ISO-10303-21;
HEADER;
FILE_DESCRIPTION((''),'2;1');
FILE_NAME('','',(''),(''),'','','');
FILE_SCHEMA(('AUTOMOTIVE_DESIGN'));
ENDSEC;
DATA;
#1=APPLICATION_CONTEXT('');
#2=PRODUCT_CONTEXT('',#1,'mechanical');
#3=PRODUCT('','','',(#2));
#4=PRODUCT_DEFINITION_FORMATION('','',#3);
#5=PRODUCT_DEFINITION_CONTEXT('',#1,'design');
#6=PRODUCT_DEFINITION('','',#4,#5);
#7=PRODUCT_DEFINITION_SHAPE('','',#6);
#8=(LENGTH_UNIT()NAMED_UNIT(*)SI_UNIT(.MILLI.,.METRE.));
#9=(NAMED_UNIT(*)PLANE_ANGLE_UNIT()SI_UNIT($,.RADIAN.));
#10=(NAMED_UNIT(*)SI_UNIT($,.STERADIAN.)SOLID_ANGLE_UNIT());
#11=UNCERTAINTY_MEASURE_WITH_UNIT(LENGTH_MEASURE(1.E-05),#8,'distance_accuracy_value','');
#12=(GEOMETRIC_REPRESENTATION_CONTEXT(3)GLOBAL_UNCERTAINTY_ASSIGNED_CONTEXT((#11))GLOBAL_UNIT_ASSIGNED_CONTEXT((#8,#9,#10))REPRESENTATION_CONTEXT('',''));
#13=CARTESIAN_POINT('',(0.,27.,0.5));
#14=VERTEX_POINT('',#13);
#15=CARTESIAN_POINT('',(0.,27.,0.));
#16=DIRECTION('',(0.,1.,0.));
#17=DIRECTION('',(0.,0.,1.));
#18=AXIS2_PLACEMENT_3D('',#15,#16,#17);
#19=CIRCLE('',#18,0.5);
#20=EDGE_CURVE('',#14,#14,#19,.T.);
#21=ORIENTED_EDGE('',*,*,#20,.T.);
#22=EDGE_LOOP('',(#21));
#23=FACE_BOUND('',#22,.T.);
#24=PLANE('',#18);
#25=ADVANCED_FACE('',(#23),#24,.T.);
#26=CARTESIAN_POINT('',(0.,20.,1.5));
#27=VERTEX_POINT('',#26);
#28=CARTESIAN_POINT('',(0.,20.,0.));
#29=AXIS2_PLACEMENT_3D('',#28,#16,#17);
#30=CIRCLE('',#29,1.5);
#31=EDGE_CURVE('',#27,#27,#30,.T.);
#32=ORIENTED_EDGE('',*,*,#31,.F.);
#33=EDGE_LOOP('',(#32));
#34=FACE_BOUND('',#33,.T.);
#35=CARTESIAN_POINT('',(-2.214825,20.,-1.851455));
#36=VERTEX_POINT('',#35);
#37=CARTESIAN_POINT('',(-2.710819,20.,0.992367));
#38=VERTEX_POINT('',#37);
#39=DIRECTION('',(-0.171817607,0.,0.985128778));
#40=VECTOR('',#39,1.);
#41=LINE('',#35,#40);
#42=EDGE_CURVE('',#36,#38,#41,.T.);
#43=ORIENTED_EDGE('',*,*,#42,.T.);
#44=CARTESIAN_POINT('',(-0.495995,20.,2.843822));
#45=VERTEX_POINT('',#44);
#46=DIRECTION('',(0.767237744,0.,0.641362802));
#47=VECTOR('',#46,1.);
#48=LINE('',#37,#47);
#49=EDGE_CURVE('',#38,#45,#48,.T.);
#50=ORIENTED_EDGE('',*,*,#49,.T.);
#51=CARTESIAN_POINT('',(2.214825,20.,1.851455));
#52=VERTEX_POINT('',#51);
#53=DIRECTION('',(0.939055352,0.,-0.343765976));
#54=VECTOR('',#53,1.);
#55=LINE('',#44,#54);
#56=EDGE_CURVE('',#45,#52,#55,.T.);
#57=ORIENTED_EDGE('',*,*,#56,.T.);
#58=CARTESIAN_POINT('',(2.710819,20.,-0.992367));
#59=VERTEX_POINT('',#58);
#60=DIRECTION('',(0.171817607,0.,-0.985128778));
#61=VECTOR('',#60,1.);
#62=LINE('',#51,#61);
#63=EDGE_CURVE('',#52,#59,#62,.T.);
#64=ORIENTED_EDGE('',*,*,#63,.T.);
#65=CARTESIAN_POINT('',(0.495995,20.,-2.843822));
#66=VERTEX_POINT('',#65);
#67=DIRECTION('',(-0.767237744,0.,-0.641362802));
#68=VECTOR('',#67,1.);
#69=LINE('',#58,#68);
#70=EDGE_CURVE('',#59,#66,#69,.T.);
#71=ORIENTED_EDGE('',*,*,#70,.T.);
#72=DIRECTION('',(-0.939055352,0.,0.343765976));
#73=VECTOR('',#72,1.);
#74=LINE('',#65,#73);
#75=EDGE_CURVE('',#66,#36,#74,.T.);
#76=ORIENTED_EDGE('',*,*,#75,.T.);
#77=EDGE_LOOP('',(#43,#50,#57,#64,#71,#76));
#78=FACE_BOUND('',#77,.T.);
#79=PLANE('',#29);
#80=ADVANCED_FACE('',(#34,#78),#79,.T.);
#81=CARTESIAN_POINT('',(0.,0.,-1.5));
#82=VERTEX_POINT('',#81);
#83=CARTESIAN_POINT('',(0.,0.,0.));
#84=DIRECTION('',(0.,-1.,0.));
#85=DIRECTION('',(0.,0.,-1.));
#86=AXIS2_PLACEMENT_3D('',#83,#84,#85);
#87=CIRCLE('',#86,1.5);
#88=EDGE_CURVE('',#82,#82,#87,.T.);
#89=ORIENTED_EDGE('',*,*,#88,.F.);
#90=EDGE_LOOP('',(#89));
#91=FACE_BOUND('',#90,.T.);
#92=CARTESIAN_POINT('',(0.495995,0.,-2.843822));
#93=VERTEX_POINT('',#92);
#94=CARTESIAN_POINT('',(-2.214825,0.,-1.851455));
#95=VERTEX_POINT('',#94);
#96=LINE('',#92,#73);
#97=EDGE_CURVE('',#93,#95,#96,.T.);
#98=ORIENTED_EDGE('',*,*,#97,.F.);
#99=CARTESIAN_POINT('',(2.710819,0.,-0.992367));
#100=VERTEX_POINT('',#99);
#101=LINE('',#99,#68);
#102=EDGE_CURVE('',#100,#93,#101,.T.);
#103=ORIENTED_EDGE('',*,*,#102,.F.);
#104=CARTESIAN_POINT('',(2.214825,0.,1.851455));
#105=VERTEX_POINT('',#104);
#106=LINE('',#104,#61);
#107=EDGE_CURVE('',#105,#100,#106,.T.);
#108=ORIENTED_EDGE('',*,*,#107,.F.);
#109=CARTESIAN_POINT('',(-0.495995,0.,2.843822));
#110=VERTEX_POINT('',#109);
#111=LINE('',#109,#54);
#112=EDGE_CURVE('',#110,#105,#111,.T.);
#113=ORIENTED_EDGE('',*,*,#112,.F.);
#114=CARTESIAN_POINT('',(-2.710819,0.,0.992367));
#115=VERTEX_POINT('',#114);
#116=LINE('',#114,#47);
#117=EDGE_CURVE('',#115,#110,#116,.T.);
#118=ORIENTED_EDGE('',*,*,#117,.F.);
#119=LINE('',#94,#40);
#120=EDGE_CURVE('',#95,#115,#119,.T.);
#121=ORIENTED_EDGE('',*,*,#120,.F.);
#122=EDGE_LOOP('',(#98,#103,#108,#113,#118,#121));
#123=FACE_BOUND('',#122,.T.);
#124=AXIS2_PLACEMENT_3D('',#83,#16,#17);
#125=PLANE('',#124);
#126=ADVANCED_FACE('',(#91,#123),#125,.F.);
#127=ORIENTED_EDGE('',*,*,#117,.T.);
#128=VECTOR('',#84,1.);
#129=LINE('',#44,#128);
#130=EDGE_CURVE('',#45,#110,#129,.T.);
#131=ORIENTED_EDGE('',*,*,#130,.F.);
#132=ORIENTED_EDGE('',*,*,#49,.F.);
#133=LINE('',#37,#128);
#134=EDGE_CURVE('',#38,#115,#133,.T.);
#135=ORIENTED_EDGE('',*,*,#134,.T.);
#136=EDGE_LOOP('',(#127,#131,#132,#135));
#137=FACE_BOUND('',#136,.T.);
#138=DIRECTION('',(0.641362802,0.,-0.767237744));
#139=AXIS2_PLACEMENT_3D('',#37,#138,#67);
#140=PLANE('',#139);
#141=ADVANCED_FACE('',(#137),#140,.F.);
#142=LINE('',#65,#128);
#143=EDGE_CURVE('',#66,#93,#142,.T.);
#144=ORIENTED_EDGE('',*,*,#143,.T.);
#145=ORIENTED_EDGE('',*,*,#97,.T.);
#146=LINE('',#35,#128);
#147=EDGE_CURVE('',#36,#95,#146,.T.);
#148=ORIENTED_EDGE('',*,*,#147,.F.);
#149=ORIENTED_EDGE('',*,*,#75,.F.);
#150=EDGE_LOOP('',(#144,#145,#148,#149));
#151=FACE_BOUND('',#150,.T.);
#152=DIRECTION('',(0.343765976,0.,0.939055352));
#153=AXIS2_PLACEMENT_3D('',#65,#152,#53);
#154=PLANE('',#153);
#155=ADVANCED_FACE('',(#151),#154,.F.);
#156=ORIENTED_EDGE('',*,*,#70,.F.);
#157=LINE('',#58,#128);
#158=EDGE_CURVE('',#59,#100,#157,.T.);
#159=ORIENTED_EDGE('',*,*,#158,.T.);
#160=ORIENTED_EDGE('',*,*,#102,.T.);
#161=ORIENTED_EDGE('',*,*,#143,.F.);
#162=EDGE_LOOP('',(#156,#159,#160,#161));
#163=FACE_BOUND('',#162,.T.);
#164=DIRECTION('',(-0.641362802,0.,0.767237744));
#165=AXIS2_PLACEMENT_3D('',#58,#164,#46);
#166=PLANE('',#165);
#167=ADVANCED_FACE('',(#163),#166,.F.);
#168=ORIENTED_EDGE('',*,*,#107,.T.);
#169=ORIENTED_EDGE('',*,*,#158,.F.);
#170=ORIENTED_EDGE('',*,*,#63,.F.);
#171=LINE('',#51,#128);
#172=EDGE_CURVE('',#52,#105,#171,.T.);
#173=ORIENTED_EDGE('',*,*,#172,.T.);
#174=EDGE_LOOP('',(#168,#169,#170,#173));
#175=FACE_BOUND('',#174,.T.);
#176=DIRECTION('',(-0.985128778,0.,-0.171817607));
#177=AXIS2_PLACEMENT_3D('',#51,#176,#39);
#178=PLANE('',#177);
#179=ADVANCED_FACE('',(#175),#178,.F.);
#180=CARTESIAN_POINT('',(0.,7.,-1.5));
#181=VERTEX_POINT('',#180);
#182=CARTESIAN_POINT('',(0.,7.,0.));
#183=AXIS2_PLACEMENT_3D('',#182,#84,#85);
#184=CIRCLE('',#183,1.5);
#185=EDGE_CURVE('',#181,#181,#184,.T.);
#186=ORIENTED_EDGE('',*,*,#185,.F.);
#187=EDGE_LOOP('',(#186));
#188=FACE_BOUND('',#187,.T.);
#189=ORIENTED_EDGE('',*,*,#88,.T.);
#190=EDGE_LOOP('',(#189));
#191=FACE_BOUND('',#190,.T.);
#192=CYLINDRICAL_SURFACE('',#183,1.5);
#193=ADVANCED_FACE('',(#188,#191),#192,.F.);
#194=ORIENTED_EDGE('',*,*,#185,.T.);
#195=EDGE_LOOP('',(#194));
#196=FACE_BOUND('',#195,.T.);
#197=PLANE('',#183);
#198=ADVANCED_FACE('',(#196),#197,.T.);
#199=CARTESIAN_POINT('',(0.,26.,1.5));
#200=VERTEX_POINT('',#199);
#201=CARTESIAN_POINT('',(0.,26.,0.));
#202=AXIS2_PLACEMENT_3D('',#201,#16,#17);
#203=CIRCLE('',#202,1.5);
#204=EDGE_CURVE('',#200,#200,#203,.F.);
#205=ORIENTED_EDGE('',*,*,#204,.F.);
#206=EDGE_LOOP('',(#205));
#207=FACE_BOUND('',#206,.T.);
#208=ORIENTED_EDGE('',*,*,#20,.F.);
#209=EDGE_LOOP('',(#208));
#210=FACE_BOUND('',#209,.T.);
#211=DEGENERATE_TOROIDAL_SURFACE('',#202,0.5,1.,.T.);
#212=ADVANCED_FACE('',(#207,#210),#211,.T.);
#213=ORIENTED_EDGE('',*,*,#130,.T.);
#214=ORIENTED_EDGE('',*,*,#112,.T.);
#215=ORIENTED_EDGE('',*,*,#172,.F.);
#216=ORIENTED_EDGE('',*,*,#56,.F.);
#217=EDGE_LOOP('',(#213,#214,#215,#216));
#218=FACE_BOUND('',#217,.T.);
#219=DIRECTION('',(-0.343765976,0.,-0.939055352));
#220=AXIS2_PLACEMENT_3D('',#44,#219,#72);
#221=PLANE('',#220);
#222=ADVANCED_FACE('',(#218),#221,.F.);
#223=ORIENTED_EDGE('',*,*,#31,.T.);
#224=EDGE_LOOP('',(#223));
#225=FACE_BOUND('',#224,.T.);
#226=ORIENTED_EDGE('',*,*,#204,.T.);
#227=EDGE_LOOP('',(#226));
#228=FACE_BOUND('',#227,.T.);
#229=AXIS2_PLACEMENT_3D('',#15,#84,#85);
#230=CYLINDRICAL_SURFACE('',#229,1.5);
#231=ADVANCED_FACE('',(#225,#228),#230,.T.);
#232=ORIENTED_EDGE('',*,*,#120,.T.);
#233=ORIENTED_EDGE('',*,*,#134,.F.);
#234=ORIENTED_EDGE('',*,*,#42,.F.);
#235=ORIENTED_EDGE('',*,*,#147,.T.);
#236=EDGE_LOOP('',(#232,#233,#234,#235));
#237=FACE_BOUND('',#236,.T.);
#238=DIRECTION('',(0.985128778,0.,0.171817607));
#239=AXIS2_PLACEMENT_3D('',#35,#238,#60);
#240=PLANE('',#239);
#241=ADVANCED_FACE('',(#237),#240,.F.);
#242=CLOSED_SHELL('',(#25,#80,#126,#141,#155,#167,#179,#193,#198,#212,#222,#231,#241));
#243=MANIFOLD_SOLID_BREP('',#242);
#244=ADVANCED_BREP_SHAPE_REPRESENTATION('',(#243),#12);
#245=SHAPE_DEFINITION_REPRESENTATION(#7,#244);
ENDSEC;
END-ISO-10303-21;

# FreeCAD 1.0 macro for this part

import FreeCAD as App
import Part
import Sketcher
Q = App.Units.Quantity


def edges_at(feature, points):
    """Names of the edges that pass closest to the given points."""
    edges = feature.Shape.Edges
    near = lambda p: min(range(len(edges)), key=lambda i: edges[i].distToShape(Part.Vertex(*p))[0])
    return sorted({f"Edge{near(p) + 1}" for p in points})

doc = App.newDocument("Part")
body = doc.addObject("PartDesign::Body", "Body")

# Sketch on XZ plane
sketch1 = doc.addObject("Sketcher::SketchObject", "Sketch")
body.addObject(sketch1)
sketch1.AttachmentSupport = (doc.XZ_Plane, [""])
sketch1.MapMode = "FlatFace"
sketch1.addGeometry([
    Part.LineSegment(App.Vector(2.214825, 1.851455, 0), App.Vector(2.710819, -0.992367, 0)),  # 0
    Part.LineSegment(App.Vector(2.710819, -0.992367, 0), App.Vector(0.495995, -2.843822, 0)),  # 1
    Part.LineSegment(App.Vector(0.495995, -2.843822, 0), App.Vector(-2.214825, -1.851455, 0)),  # 2
    Part.LineSegment(App.Vector(-2.214825, -1.851455, 0), App.Vector(-2.710819, 0.992367, 0)),  # 3
    Part.LineSegment(App.Vector(-2.710819, 0.992367, 0), App.Vector(-0.495995, 2.843822, 0)),  # 4
    Part.LineSegment(App.Vector(-0.495995, 2.843822, 0), App.Vector(2.214825, 1.851455, 0)),  # 5
], False)
sketch1.addConstraint([
    Sketcher.Constraint("Coincident", 0, 2, 1, 1),
    Sketcher.Constraint("Coincident", 1, 2, 2, 1),
    Sketcher.Constraint("Coincident", 2, 2, 3, 1),
    Sketcher.Constraint("Coincident", 3, 2, 4, 1),
    Sketcher.Constraint("Coincident", 4, 2, 5, 1),
    Sketcher.Constraint("Coincident", 5, 2, 0, 1),
    Sketcher.Constraint("Symmetric", 0, 2, 3, 2, -1, 1),
    Sketcher.Constraint("Symmetric", 1, 2, 4, 2, -1, 1),
    Sketcher.Constraint("Symmetric", 2, 2, 5, 2, -1, 1),
    Sketcher.Constraint("Equal", 0, 1),
    Sketcher.Constraint("Equal", 1, 2),
    Sketcher.Constraint("Distance", 0, Q("2.886751 mm")),
    Sketcher.Constraint("DistanceX", -1, 1, 0, 2, Q("2.710819 mm")),
    Sketcher.Constraint("DistanceY", 1, 2, -1, 1, Q("2.843822 mm")),
    Sketcher.Constraint("DistanceX", 2, 2, 1, 2, Q("2.710819 mm")),
])
pad1 = doc.addObject("PartDesign::Pad", "Pad")
body.addObject(pad1)
pad1.Profile = sketch1
pad1.Length = 20
pad1.Reversed = True

# Sketch on XZ plane
sketch2 = doc.addObject("Sketcher::SketchObject", "Sketch001")
body.addObject(sketch2)
sketch2.AttachmentSupport = (doc.XZ_Plane, [""])
sketch2.MapMode = "FlatFace"
sketch2.AttachmentOffset = App.Placement(App.Vector(0, 0, -20), App.Rotation())
sketch2.addGeometry(Part.Circle(App.Vector(0, 0, 0), App.Vector(0, 0, 1), 1.5), False)
sketch2.addConstraint([
    Sketcher.Constraint("Coincident", 0, 3, -1, 1),
    Sketcher.Constraint("Diameter", 0, Q("3 mm")),
])
pad2 = doc.addObject("PartDesign::Pad", "Pad001")
body.addObject(pad2)
pad2.Profile = sketch2
pad2.Length = 7
pad2.Reversed = True

# Sketch on XZ plane
sketch3 = doc.addObject("Sketcher::SketchObject", "Sketch002")
body.addObject(sketch3)
sketch3.AttachmentSupport = (doc.XZ_Plane, [""])
sketch3.MapMode = "FlatFace"
sketch3.addGeometry(Part.Circle(App.Vector(0, 0, 0), App.Vector(0, 0, 1), 1.5), False)
sketch3.addConstraint([
    Sketcher.Constraint("Coincident", 0, 3, -1, 1),
    Sketcher.Constraint("Diameter", 0, Q("3 mm")),
])
pocket1 = doc.addObject("PartDesign::Pocket", "Pocket")
body.addObject(pocket1)
pocket1.Profile = sketch3
pocket1.Length = 7
doc.recompute()

fillet = doc.addObject("PartDesign::Fillet", "Fillet")
body.addObject(fillet)
fillet.Base = (pocket1, edges_at(pocket1, [(-1.5, 27, 0)]))
fillet.Radius = 1

doc.recompute()
